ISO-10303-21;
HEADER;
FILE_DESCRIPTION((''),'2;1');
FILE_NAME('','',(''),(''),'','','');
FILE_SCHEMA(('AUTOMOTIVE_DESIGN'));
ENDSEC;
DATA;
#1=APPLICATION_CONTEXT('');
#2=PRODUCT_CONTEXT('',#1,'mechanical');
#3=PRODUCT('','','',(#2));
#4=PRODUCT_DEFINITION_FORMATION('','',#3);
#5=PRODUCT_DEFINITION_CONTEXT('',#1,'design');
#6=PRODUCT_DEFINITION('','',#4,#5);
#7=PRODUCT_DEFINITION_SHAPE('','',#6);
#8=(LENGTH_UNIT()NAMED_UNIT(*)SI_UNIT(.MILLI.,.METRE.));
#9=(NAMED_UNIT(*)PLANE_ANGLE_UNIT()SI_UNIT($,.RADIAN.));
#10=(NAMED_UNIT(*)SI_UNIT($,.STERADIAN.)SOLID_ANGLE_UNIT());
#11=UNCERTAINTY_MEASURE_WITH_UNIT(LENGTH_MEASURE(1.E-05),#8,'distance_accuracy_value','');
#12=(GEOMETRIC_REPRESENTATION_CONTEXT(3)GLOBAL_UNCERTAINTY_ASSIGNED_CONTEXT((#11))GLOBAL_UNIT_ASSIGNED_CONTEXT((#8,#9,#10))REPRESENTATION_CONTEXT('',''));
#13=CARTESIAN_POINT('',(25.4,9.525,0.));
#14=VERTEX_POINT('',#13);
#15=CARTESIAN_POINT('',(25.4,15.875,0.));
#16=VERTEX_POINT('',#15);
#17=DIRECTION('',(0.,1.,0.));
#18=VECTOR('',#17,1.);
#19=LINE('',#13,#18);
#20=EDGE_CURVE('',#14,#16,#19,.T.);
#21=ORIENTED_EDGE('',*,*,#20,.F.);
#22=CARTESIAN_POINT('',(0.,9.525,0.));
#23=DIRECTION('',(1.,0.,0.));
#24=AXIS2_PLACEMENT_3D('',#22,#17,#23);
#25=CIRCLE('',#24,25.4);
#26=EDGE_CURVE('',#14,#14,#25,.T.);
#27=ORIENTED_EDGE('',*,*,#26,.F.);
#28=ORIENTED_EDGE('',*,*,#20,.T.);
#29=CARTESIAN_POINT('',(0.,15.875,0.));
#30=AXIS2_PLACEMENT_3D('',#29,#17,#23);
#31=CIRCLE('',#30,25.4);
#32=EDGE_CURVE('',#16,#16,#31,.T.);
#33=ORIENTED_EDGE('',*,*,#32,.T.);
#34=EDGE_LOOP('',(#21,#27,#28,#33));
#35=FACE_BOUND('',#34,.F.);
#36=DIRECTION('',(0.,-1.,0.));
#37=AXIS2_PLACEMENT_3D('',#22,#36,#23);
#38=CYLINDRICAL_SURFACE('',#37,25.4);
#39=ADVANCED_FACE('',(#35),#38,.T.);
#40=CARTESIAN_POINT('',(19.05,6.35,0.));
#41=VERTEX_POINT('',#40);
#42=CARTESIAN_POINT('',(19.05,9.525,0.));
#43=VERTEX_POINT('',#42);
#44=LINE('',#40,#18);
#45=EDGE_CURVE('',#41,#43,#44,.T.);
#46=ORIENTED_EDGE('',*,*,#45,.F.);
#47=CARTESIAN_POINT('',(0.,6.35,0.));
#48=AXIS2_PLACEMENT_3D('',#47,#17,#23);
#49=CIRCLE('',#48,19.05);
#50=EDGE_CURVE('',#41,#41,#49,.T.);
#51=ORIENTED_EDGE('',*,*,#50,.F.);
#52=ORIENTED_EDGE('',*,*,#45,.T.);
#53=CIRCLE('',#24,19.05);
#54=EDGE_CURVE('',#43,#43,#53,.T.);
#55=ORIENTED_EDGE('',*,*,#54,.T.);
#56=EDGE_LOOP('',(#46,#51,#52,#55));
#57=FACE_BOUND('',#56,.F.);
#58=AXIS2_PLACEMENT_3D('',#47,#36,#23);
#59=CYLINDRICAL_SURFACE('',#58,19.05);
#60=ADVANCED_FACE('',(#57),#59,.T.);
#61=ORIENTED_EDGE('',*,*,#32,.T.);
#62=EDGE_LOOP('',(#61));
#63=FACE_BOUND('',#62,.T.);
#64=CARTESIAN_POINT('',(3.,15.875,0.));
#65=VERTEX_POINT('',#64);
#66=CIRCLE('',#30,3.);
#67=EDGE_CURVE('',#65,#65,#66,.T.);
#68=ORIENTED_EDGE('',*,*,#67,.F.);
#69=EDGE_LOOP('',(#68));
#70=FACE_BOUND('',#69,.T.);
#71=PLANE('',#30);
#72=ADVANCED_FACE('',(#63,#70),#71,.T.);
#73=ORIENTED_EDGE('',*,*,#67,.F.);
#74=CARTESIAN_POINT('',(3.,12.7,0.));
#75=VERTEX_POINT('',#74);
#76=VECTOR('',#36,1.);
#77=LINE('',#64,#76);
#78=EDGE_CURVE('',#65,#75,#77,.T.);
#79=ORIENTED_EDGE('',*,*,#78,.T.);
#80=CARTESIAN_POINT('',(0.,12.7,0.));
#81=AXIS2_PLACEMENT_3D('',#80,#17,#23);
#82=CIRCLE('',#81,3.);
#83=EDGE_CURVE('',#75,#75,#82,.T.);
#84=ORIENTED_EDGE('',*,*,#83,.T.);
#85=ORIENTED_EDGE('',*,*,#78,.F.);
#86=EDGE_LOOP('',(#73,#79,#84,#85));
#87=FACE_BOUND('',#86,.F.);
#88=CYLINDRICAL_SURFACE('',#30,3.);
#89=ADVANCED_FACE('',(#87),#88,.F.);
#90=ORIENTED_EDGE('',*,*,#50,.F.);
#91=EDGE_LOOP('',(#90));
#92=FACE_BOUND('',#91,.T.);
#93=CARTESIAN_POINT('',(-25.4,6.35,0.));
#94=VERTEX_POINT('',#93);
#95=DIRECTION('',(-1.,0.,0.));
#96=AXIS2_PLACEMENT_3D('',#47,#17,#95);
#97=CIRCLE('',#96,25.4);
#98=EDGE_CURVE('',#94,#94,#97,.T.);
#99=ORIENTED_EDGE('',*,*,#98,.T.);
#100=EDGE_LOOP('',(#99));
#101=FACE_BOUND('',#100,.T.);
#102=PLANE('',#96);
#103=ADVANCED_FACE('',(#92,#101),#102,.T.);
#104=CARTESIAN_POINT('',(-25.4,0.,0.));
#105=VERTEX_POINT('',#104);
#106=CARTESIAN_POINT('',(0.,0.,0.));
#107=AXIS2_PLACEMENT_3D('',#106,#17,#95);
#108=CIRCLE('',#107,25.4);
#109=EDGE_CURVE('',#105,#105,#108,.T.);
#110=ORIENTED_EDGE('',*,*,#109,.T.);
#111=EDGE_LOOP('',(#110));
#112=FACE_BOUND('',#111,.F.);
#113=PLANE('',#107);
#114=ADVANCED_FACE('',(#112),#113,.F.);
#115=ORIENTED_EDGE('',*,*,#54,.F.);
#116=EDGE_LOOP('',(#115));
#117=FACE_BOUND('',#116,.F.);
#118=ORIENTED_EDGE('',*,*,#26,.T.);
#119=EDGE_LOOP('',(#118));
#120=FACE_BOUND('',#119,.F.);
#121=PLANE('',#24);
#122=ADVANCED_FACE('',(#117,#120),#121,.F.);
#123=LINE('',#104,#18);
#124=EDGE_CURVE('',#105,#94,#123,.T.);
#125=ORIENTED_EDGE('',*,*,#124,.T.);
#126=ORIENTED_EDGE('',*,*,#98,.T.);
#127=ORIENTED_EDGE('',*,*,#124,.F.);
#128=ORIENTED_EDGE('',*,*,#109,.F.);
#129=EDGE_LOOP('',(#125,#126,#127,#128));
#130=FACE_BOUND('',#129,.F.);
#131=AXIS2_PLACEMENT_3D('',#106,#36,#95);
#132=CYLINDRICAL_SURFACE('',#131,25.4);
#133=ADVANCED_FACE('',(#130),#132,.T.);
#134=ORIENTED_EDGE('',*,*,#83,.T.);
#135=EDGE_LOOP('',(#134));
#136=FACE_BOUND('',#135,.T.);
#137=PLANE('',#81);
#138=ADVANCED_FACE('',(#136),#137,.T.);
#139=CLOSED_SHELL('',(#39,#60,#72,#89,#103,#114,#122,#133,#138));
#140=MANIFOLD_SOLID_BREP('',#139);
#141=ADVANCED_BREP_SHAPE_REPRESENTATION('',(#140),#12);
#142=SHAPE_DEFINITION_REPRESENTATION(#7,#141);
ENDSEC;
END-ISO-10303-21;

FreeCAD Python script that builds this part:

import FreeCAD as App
import Part
import Sketcher
from FreeCAD import Vector
Q = App.Units.Quantity

doc = App.newDocument("Part")
body = doc.addObject("PartDesign::Body", "Body")

# Sketch on XZ plane
sketch1 = body.newObject("Sketcher::SketchObject", "Sketch")
sketch1.AttachmentSupport = (doc.getObject("XZ_Plane"), [""])
sketch1.MapMode = "FlatFace"
sketch1.addGeometry(Part.Circle(Vector(0, 0, 0), Vector(0, 0, 1), 25), False)
sketch1.addConstraint([
    Sketcher.Constraint("Coincident", 0, 3, -1, 1),
    Sketcher.Constraint("Diameter", 0, Q("2 in")),
])
pad1 = body.newObject("PartDesign::Pad", "Pad")
pad1.Profile = sketch1
pad1.Length = Q("0.25 in")
pad1.Reversed = True

# Sketch on XZ plane
sketch2 = body.newObject("Sketcher::SketchObject", "Sketch001")
sketch2.AttachmentSupport = (doc.getObject("XZ_Plane"), [""])
sketch2.MapMode = "FlatFace"
sketch2.AttachmentOffset = App.Placement(Vector(0, 0, -0.25 * 25.4), App.Rotation())
sketch2.addGeometry(Part.Circle(Vector(0, 0, 0), Vector(0, 0, 1), 19), False)
sketch2.addConstraint([
    Sketcher.Constraint("Coincident", 0, 3, -1, 1),
    Sketcher.Constraint("Diameter", 0, Q("1.5 in")),
])
pad2 = body.newObject("PartDesign::Pad", "Pad001")
pad2.Profile = sketch2
pad2.Length = Q("0.125 in")
pad2.Reversed = True

# Sketch on XZ plane
sketch3 = body.newObject("Sketcher::SketchObject", "Sketch002")
sketch3.AttachmentSupport = (doc.getObject("XZ_Plane"), [""])
sketch3.MapMode = "FlatFace"
sketch3.AttachmentOffset = App.Placement(Vector(0, 0, -0.375 * 25.4), App.Rotation())
sketch3.addGeometry(Part.Circle(Vector(0, 0, 0), Vector(0, 0, 1), 25), False)
sketch3.addConstraint([
    Sketcher.Constraint("Coincident", 0, 3, -1, 1),
    Sketcher.Constraint("Diameter", 0, Q("2 in")),
])
pad3 = body.newObject("PartDesign::Pad", "Pad002")
pad3.Profile = sketch3
pad3.Length = Q("0.25 in")
pad3.Reversed = True

# Sketch on XZ plane
sketch4 = body.newObject("Sketcher::SketchObject", "Sketch003")
sketch4.AttachmentSupport = (doc.getObject("XZ_Plane"), [""])
sketch4.MapMode = "FlatFace"
sketch4.AttachmentOffset = App.Placement(Vector(0, 0, -0.625 * 25.4), App.Rotation())
sketch4.addGeometry(Part.Circle(Vector(0, 0, 0), Vector(0, 0, 1), 3), False)
sketch4.addConstraint([
    Sketcher.Constraint("Coincident", 0, 3, -1, 1),
    Sketcher.Constraint("Diameter", 0, 6.0),
])
pocket1 = body.newObject("PartDesign::Pocket", "Pocket")
pocket1.Profile = sketch4
pocket1.Length = Q("0.125 in")
pocket1.Reversed = True

doc.recompute()
